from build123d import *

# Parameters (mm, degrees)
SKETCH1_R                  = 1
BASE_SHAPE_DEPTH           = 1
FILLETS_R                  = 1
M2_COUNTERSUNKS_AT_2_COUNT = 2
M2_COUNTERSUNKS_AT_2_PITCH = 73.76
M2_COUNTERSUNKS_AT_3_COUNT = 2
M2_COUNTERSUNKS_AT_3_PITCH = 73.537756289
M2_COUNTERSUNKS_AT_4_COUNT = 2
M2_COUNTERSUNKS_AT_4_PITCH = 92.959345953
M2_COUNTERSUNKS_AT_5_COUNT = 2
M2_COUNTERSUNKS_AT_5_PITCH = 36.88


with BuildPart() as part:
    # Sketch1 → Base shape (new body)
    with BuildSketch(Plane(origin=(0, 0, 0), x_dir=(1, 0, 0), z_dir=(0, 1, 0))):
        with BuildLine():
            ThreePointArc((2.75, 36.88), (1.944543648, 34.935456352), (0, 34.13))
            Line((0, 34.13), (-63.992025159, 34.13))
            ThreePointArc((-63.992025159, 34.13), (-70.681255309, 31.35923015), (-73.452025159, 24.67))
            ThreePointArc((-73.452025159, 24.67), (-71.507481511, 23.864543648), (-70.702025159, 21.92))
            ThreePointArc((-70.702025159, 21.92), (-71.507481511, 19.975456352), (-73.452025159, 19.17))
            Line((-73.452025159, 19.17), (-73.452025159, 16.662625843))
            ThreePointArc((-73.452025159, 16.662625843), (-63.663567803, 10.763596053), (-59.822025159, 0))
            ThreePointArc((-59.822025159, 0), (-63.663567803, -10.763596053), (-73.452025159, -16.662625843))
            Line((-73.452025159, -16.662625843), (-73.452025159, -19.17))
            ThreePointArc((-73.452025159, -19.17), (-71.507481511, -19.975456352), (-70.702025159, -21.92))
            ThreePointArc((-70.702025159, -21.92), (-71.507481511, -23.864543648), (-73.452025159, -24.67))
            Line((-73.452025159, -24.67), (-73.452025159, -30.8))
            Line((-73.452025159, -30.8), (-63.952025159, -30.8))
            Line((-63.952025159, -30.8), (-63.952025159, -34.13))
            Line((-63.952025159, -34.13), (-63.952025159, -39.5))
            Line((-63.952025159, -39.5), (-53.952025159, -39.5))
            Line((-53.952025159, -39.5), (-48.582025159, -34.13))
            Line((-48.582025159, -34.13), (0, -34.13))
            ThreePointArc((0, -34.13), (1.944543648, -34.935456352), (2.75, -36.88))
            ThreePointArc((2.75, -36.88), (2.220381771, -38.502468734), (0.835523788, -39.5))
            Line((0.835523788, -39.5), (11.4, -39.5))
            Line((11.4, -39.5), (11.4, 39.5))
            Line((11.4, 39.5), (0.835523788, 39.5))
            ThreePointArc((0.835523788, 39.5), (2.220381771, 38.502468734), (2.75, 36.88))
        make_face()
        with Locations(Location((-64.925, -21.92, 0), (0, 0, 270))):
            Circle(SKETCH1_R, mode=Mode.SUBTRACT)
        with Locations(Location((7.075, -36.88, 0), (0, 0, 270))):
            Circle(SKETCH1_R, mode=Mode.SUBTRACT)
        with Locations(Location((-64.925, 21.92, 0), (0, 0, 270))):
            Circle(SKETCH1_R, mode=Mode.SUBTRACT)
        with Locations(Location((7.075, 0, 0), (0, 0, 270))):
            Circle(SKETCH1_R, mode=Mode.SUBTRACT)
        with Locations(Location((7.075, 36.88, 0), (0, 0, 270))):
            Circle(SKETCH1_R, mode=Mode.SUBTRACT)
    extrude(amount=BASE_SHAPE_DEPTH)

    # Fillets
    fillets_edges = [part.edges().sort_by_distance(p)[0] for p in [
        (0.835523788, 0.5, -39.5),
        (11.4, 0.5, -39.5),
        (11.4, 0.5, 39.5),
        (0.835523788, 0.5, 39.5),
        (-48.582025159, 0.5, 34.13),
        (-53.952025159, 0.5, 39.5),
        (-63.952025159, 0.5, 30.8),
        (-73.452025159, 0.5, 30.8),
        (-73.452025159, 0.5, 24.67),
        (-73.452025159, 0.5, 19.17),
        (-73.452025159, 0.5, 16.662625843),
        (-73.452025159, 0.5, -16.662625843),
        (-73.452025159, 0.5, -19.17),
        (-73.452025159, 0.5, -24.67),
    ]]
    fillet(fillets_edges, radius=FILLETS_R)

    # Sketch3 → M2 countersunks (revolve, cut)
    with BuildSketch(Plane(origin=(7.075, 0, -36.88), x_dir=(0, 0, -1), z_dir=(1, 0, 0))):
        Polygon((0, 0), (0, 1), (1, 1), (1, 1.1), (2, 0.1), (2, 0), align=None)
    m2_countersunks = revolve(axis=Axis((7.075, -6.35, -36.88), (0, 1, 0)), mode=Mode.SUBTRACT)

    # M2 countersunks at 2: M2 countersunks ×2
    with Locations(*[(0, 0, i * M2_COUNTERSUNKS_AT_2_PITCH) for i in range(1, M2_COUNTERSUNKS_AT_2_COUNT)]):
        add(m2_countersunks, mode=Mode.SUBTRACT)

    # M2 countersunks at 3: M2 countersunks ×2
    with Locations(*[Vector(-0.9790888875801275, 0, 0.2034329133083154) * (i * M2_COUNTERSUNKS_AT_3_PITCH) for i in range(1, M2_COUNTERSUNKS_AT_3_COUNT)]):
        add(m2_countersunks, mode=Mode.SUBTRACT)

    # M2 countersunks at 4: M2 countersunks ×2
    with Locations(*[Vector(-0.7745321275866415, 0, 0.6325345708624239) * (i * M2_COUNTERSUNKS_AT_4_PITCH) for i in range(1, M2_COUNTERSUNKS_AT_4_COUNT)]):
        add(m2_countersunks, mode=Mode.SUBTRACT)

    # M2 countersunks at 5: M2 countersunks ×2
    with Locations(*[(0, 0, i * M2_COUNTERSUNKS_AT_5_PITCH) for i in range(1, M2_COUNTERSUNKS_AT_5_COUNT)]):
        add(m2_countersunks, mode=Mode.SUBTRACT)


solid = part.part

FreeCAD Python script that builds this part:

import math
import FreeCAD as App
import Part
import Sketcher

V = App.Vector
Q = App.Units.Quantity


def edges_at(feature, points):
    """Names of the edges that pass closest to the given points."""
    edges = feature.Shape.Edges
    near = lambda p: min(range(len(edges)), key=lambda i: edges[i].distToShape(Part.Vertex(*p))[0])
    return sorted({f"Edge{near(p) + 1}" for p in points})


def add_polygon(sketch, points):
    """Adds a closed chain of lines whose ends are joined by coincident constraints."""
    first, n = sketch.GeometryCount, len(points)
    for a, b in zip(points, points[1:] + points[:1]):
        sketch.addGeometry(Part.LineSegment(App.Vector(*a, 0), App.Vector(*b, 0)), False)
    for i in range(n):
        sketch.addConstraint(Sketcher.Constraint("Coincident", first + i, 2, first + (i + 1) % n, 1))

doc = App.newDocument("Part")
params = doc.addObject("Spreadsheet::Sheet", "Params")
for row, (alias, value) in enumerate([
    ("sketch1_diameter", "2 mm"),
    ("sketch1_radius", "17 mm"),
    ("sketch1_width", "10 mm"),
    ("sketch1_height", "79 mm"),
    ("sketch1_radius2", "2.75 mm"),
    ("pad1_length", "1 mm"),
    ("fillet_radius", "1 mm"),
    ("sketch2_width", "1 mm"),
    ("sketch2_height", "2 mm"),
    ("sketch2_width2", "0.1 mm"),
    ("groove_angle", "360 deg"),
    ("linearpattern_pitch", "73.76 mm"),
    ("linearpattern2_pitch", "73.537756 mm"),
    ("linearpattern3_pitch", "92.959346 mm"),
    ("linearpattern4_pitch", "36.88 mm"),
], start=1):
    params.set(f"A{row}", alias)
    params.set(f"B{row}", "=" + value)
    params.setAlias(f"B{row}", alias)

body = doc.addObject("PartDesign::Body", "Body")

# Sketch on XZ plane
sketch1 = doc.addObject("Sketcher::SketchObject", "Sketch")
body.addObject(sketch1)
sketch1.AttachmentSupport = (doc.XZ_Plane, [""])
sketch1.MapMode = "FlatFace"
sketch1.addGeometry(Part.ArcOfCircle(Part.Circle(V(0, -36.88, 0), V(0, 0, 1), 2.75), math.radians(0), math.radians(90)), False)
sketch1.addGeometry(Part.LineSegment(V(0, -34.13, 0), V(-63.992025, -34.13, 0)), False)
sketch1.addGeometry(Part.ArcOfCircle(Part.Circle(V(-63.992025, -24.67, 0), V(0, 0, 1), 9.46), math.radians(180), math.radians(270)), False)
sketch1.addGeometry(Part.ArcOfCircle(Part.Circle(V(-73.452025, -21.92, 0), V(0, 0, 1), 2.75), math.radians(-90), math.radians(0)), False)
sketch1.addGeometry(Part.ArcOfCircle(Part.Circle(V(-73.452025, -21.92, 0), V(0, 0, 1), 2.75), math.radians(0), math.radians(90)), False)
sketch1.addGeometry(Part.LineSegment(V(-73.452025, -19.17, 0), V(-73.452025, -16.662626, 0)), False)
sketch1.addGeometry(Part.ArcOfCircle(Part.Circle(V(-76.822025, 0, 0), V(0, 0, 1), 17), math.radians(-78.566217), math.radians(0)), False)
sketch1.addGeometry(Part.ArcOfCircle(Part.Circle(V(-76.822025, 0, 0), V(0, 0, 1), 17), math.radians(0), math.radians(78.566217)), False)
sketch1.addGeometry(Part.LineSegment(V(-73.452025, 16.662626, 0), V(-73.452025, 19.17, 0)), False)
sketch1.addGeometry(Part.ArcOfCircle(Part.Circle(V(-73.452025, 21.92, 0), V(0, 0, 1), 2.75), math.radians(-90), math.radians(0)), False)
sketch1.addGeometry(Part.ArcOfCircle(Part.Circle(V(-73.452025, 21.92, 0), V(0, 0, 1), 2.75), math.radians(0), math.radians(90)), False)
sketch1.addGeometry(Part.LineSegment(V(-73.452025, 24.67, 0), V(-73.452025, 30.8, 0)), False)
sketch1.addGeometry(Part.LineSegment(V(-73.452025, 30.8, 0), V(-63.952025, 30.8, 0)), False)
sketch1.addGeometry(Part.LineSegment(V(-63.952025, 30.8, 0), V(-63.952025, 39.5, 0)), False)
sketch1.addGeometry(Part.LineSegment(V(-63.952025, 39.5, 0), V(-53.952025, 39.5, 0)), False)
sketch1.addGeometry(Part.LineSegment(V(-53.952025, 39.5, 0), V(-48.582025, 34.13, 0)), False)
sketch1.addGeometry(Part.LineSegment(V(-48.582025, 34.13, 0), V(0, 34.13, 0)), False)
sketch1.addGeometry(Part.ArcOfCircle(Part.Circle(V(0, 36.88, 0), V(0, 0, 1), 2.75), math.radians(-90), math.radians(0)), False)
sketch1.addGeometry(Part.ArcOfCircle(Part.Circle(V(0, 36.88, 0), V(0, 0, 1), 2.75), math.radians(0), math.radians(72.312403)), False)
sketch1.addGeometry(Part.LineSegment(V(0.835524, 39.5, 0), V(11.4, 39.5, 0)), False)
sketch1.addGeometry(Part.LineSegment(V(11.4, 39.5, 0), V(11.4, -39.5, 0)), False)
sketch1.addGeometry(Part.LineSegment(V(11.4, -39.5, 0), V(0.835524, -39.5, 0)), False)
sketch1.addGeometry(Part.ArcOfCircle(Part.Circle(V(0, -36.88, 0), V(0, 0, 1), 2.75), math.radians(-72.312403), math.radians(0)), False)
sketch1.addGeometry(Part.Circle(V(-64.925, 21.92, 0), V(0, 0, 1), 1), False)
sketch1.addGeometry(Part.Circle(V(7.075, 36.88, 0), V(0, 0, 1), 1), False)
sketch1.addGeometry(Part.Circle(V(-64.925, -21.92, 0), V(0, 0, 1), 1), False)
sketch1.addGeometry(Part.Circle(V(7.075, 0, 0), V(0, 0, 1), 1), False)
sketch1.addGeometry(Part.Circle(V(7.075, -36.88, 0), V(0, 0, 1), 1), False)
sketch1.addConstraint(Sketcher.Constraint("Tangent", 0, 2, 1, 1))
sketch1.addConstraint(Sketcher.Constraint("Tangent", 1, 2, 2, 2))
sketch1.addConstraint(Sketcher.Constraint("Coincident", 2, 1, 3, 1))
sketch1.addConstraint(Sketcher.Constraint("Tangent", 3, 2, 4, 1))
sketch1.addConstraint(Sketcher.Constraint("Coincident", 4, 2, 5, 1))
sketch1.addConstraint(Sketcher.Constraint("Coincident", 5, 2, 6, 1))
sketch1.addConstraint(Sketcher.Constraint("Tangent", 6, 2, 7, 1))
sketch1.addConstraint(Sketcher.Constraint("Coincident", 7, 2, 8, 1))
sketch1.addConstraint(Sketcher.Constraint("Coincident", 8, 2, 9, 1))
sketch1.addConstraint(Sketcher.Constraint("Tangent", 9, 2, 10, 1))
sketch1.addConstraint(Sketcher.Constraint("Coincident", 10, 2, 11, 1))
sketch1.addConstraint(Sketcher.Constraint("Coincident", 11, 2, 12, 1))
sketch1.addConstraint(Sketcher.Constraint("Coincident", 12, 2, 13, 1))
sketch1.addConstraint(Sketcher.Constraint("Coincident", 13, 2, 14, 1))
sketch1.addConstraint(Sketcher.Constraint("Coincident", 14, 2, 15, 1))
sketch1.addConstraint(Sketcher.Constraint("Coincident", 15, 2, 16, 1))
sketch1.addConstraint(Sketcher.Constraint("Tangent", 16, 2, 17, 1))
sketch1.addConstraint(Sketcher.Constraint("Tangent", 17, 2, 18, 1))
sketch1.addConstraint(Sketcher.Constraint("Coincident", 18, 2, 19, 1))
sketch1.addConstraint(Sketcher.Constraint("Coincident", 19, 2, 20, 1))
sketch1.addConstraint(Sketcher.Constraint("Coincident", 20, 2, 21, 1))
sketch1.addConstraint(Sketcher.Constraint("Coincident", 21, 2, 22, 1))
sketch1.addConstraint(Sketcher.Constraint("Tangent", 22, 2, 0, 1))
sketch1.addConstraint(Sketcher.Constraint("Horizontal", 1))
sketch1.addConstraint(Sketcher.Constraint("Vertical", 5))
sketch1.addConstraint(Sketcher.Constraint("Vertical", 8))
sketch1.addConstraint(Sketcher.Constraint("Vertical", 11))
sketch1.addConstraint(Sketcher.Constraint("Horizontal", 12))
sketch1.addConstraint(Sketcher.Constraint("Vertical", 13))
sketch1.addConstraint(Sketcher.Constraint("Horizontal", 14))
sketch1.addConstraint(Sketcher.Constraint("Horizontal", 16))
sketch1.addConstraint(Sketcher.Constraint("Horizontal", 19))
sketch1.addConstraint(Sketcher.Constraint("Vertical", 20))
sketch1.addConstraint(Sketcher.Constraint("Horizontal", 21))
sketch1.addConstraint(Sketcher.Constraint("Equal", 0, 3))
sketch1.addConstraint(Sketcher.Constraint("Equal", 3, 4))
sketch1.addConstraint(Sketcher.Constraint("Equal", 6, 7))
sketch1.addConstraint(Sketcher.Constraint("Equal", 4, 9))
sketch1.addConstraint(Sketcher.Constraint("Equal", 9, 10))
sketch1.addConstraint(Sketcher.Constraint("Equal", 10, 17))
sketch1.addConstraint(Sketcher.Constraint("Equal", 17, 18))
sketch1.addConstraint(Sketcher.Constraint("Equal", 18, 22))
sketch1.addConstraint(Sketcher.Constraint("Equal", 23, 24))
sketch1.addConstraint(Sketcher.Constraint("Equal", 24, 25))
sketch1.addConstraint(Sketcher.Constraint("Equal", 25, 26))
sketch1.addConstraint(Sketcher.Constraint("Equal", 26, 27))
sketch1.addConstraint(Sketcher.Constraint("Symmetric", 0, 3, 17, 3, -1, 1))
sketch1.addConstraint(Sketcher.Constraint("Symmetric", 3, 3, 9, 3, -1))
sketch1.addConstraint(Sketcher.Constraint("Symmetric", 23, 3, 25, 3, -1))
sketch1.addConstraint(Sketcher.Constraint("Symmetric", 24, 3, 27, 3, -1))
sketch1.addConstraint(Sketcher.Constraint("Symmetric", 5, 2, 7, 2, -1))
sketch1.addConstraint(Sketcher.Constraint("Symmetric", 18, 2, 21, 2, -1))
sketch1.addConstraint(Sketcher.Constraint("PointOnObject", 26, 3, -1))
sketch1.addConstraint(Sketcher.Constraint("PointOnObject", 6, 2, -1))
sketch1.addConstraint(Sketcher.Constraint("Horizontal", 10, 3, 23, 3))
sketch1.addConstraint(Sketcher.Constraint("Horizontal", 18, 3, 24, 3))
sketch1.addConstraint(Sketcher.Constraint("Horizontal", 25, 3, 3, 2))
sketch1.addConstraint(Sketcher.Constraint("Horizontal", 23, 3, 9, 2))
sketch1.addConstraint(Sketcher.Constraint("Horizontal", 24, 3, 17, 2))
sketch1.addConstraint(Sketcher.Constraint("Horizontal", 14, 2, 18, 2))
sketch1.addConstraint(Sketcher.Constraint("Horizontal", 27, 3, 22, 2))
sketch1.addConstraint(Sketcher.Constraint("Vertical", 24, 3, 26, 3))
sketch1.addConstraint(Sketcher.Constraint("Vertical", 10, 3, 2, 1))
sketch1.addConstraint(Sketcher.Constraint("Vertical", 2, 1, 4, 2))
sketch1.addConstraint(Sketcher.Constraint("Vertical", 8, 2, 10, 2))
sketch1.addConstraint(Sketcher.Constraint("Diameter", 23, Q("2 mm")))
sketch1.addConstraint(Sketcher.Constraint("Radius", 6, Q("17 mm")))
sketch1.addConstraint(Sketcher.Constraint("DistanceX", 14, 1, 14, 2, Q("10 mm")))
sketch1.addConstraint(Sketcher.Constraint("DistanceY", 20, 2, 20, 1, Q("79 mm")))
sketch1.addConstraint(Sketcher.Constraint("Angle", 15, Q("-45 deg")))
sketch1.addConstraint(Sketcher.Constraint("Radius", 0, Q("2.75 mm")))
sketch1.addConstraint(Sketcher.Constraint("Radius", 2, Q("9.46 mm")))
sketch1.addConstraint(Sketcher.Constraint("DistanceX", 12, 1, 12, 2, Q("9.5 mm")))
sketch1.addConstraint(Sketcher.Constraint("DistanceY", 13, 1, 13, 2, Q("8.7 mm")))
sketch1.addConstraint(Sketcher.Constraint("DistanceX", 23, 3, 24, 3, Q("72 mm")))
sketch1.addConstraint(Sketcher.Constraint("DistanceY", 11, 1, 11, 2, Q("6.13 mm")))
sketch1.addConstraint(Sketcher.Constraint("DistanceX", -1, 1, 19, 2, Q("11.4 mm")))
sketch1.addConstraint(Sketcher.Constraint("DistanceY", 0, 3, -1, 1, Q("36.88 mm")))
sketch1.addConstraint(Sketcher.Constraint("DistanceX", 6, 3, 3, 3, Q("3.37 mm")))
sketch1.addConstraint(Sketcher.Constraint("DistanceX", 23, 3, -1, 1, Q("64.925 mm")))
sketch1.addConstraint(Sketcher.Constraint("DistanceX", 1, 2, 1, 1, Q("63.992025 mm")))
sketch1.setExpression("Constraints[65]", "Params.sketch1_diameter")
sketch1.setExpression("Constraints[66]", "Params.sketch1_radius")
sketch1.setExpression("Constraints[67]", "Params.sketch1_width")
sketch1.setExpression("Constraints[68]", "Params.sketch1_height")
sketch1.setExpression("Constraints[70]", "Params.sketch1_radius2")
pad1 = doc.addObject("PartDesign::Pad", "Pad")
body.addObject(pad1)
pad1.Profile = sketch1
pad1.setExpression("Length", "Params.pad1_length")
pad1.Reversed = True
doc.recompute()

fillet = doc.addObject("PartDesign::Fillet", "Fillet")
body.addObject(fillet)
fillet.Base = (pad1, edges_at(pad1, [
    (0.836, 0.5, -39.5),
    (11.4, 0.5, -39.5),
    (11.4, 0.5, 39.5),
    (0.836, 0.5, 39.5),
    (-48.582, 0.5, 34.13),
    (-53.952, 0.5, 39.5),
    (-63.952, 0.5, 30.8),
    (-73.452, 0.5, 30.8),
    (-73.452, 0.5, 24.67),
    (-73.452, 0.5, 19.17),
    (-73.452, 0.5, 16.663),
    (-73.452, 0.5, -16.663),
    (-73.452, 0.5, -19.17),
    (-73.452, 0.5, -24.67),
]))
fillet.setExpression("Radius", "Params.fillet_radius")

# Sketch on YZ plane
sketch2 = doc.addObject("Sketcher::SketchObject", "Sketch001")
body.addObject(sketch2)
sketch2.AttachmentSupport = (doc.YZ_Plane, [""])
sketch2.MapMode = "FlatFace"
sketch2.AttachmentOffset = App.Placement(V(0, 0, 7.075), App.Rotation())
add_polygon(sketch2, [(1, -36.88), (0, -36.88), (0, -38.88), (0.1, -38.88), (1.1, -37.88), (1, -37.88)])  # lines 0-5
sketch2.addGeometry(Part.LineSegment(V(0, -36.88, 0), V(1.1, -36.88, 0)), True)  # axis
sketch2.addConstraint(Sketcher.Constraint("Horizontal", 0))
sketch2.addConstraint(Sketcher.Constraint("Vertical", 1))
sketch2.addConstraint(Sketcher.Constraint("Horizontal", 2))
sketch2.addConstraint(Sketcher.Constraint("Horizontal", 4))
sketch2.addConstraint(Sketcher.Constraint("Vertical", 5))
sketch2.addConstraint(Sketcher.Constraint("Horizontal", 6))
sketch2.addConstraint(Sketcher.Constraint("Coincident", 6, 1, 0, 2))
sketch2.addConstraint(Sketcher.Constraint("PointOnObject", 0, 2, -2))
sketch2.addConstraint(Sketcher.Constraint("Vertical", 3, 2, 6, 2))
sketch2.addConstraint(Sketcher.Constraint("Equal", 2, 4))
sketch2.addConstraint(Sketcher.Constraint("Equal", 0, 5))
sketch2.addConstraint(Sketcher.Constraint("DistanceX", 0, 2, 0, 1, Q("1 mm")))
sketch2.addConstraint(Sketcher.Constraint("DistanceY", 1, 2, 1, 1, Q("2 mm")))
sketch2.addConstraint(Sketcher.Constraint("DistanceX", 2, 1, 2, 2, Q("0.1 mm")))
sketch2.addConstraint(Sketcher.Constraint("DistanceY", 0, 2, -1, 1, Q("36.88 mm")))
sketch2.setExpression("Constraints[17]", "Params.sketch2_width")
sketch2.setExpression("Constraints[18]", "Params.sketch2_height")
sketch2.setExpression("Constraints[19]", "Params.sketch2_width2")
groove = doc.addObject("PartDesign::Groove", "Groove")
body.addObject(groove)
groove.Profile = sketch2
groove.ReferenceAxis = (sketch2, ["Axis0"])
groove.setExpression("Angle", "Params.groove_angle")
doc.recompute()

linearpattern = doc.addObject("PartDesign::LinearPattern", "LinearPattern")
body.addObject(linearpattern)
linearpattern.Originals = [groove]
linearpattern.Direction = (doc.Z_Axis, [""])
linearpattern.Mode = "offset"
linearpattern.setExpression("Offset", "Params.linearpattern_pitch")
linearpattern.Occurrences = 2
body.Tip = linearpattern
doc.recompute()

datumline = doc.addObject("PartDesign::Line", "DatumLine")
body.addObject(datumline)
datumline.Placement = App.Placement(V(0, 0, 0), App.Rotation(V(0, 0, 1), V(-0.979088888, 0, 0.203432913)))
linearpattern2 = doc.addObject("PartDesign::LinearPattern", "LinearPattern001")
body.addObject(linearpattern2)
linearpattern2.Originals = [groove]
linearpattern2.Direction = (datumline, [""])
linearpattern2.Mode = "offset"
linearpattern2.setExpression("Offset", "Params.linearpattern2_pitch")
linearpattern2.Occurrences = 2
body.Tip = linearpattern2
doc.recompute()

datumline2 = doc.addObject("PartDesign::Line", "DatumLine001")
body.addObject(datumline2)
datumline2.Placement = App.Placement(V(0, 0, 0), App.Rotation(V(0, 0, 1), V(-0.774532128, 0, 0.632534571)))
linearpattern3 = doc.addObject("PartDesign::LinearPattern", "LinearPattern002")
body.addObject(linearpattern3)
linearpattern3.Originals = [groove]
linearpattern3.Direction = (datumline2, [""])
linearpattern3.Mode = "offset"
linearpattern3.setExpression("Offset", "Params.linearpattern3_pitch")
linearpattern3.Occurrences = 2
body.Tip = linearpattern3
doc.recompute()

linearpattern4 = doc.addObject("PartDesign::LinearPattern", "LinearPattern003")
body.addObject(linearpattern4)
linearpattern4.Originals = [groove]
linearpattern4.Direction = (doc.Z_Axis, [""])
linearpattern4.Mode = "offset"
linearpattern4.setExpression("Offset", "Params.linearpattern4_pitch")
linearpattern4.Occurrences = 2
body.Tip = linearpattern4

doc.recompute()
